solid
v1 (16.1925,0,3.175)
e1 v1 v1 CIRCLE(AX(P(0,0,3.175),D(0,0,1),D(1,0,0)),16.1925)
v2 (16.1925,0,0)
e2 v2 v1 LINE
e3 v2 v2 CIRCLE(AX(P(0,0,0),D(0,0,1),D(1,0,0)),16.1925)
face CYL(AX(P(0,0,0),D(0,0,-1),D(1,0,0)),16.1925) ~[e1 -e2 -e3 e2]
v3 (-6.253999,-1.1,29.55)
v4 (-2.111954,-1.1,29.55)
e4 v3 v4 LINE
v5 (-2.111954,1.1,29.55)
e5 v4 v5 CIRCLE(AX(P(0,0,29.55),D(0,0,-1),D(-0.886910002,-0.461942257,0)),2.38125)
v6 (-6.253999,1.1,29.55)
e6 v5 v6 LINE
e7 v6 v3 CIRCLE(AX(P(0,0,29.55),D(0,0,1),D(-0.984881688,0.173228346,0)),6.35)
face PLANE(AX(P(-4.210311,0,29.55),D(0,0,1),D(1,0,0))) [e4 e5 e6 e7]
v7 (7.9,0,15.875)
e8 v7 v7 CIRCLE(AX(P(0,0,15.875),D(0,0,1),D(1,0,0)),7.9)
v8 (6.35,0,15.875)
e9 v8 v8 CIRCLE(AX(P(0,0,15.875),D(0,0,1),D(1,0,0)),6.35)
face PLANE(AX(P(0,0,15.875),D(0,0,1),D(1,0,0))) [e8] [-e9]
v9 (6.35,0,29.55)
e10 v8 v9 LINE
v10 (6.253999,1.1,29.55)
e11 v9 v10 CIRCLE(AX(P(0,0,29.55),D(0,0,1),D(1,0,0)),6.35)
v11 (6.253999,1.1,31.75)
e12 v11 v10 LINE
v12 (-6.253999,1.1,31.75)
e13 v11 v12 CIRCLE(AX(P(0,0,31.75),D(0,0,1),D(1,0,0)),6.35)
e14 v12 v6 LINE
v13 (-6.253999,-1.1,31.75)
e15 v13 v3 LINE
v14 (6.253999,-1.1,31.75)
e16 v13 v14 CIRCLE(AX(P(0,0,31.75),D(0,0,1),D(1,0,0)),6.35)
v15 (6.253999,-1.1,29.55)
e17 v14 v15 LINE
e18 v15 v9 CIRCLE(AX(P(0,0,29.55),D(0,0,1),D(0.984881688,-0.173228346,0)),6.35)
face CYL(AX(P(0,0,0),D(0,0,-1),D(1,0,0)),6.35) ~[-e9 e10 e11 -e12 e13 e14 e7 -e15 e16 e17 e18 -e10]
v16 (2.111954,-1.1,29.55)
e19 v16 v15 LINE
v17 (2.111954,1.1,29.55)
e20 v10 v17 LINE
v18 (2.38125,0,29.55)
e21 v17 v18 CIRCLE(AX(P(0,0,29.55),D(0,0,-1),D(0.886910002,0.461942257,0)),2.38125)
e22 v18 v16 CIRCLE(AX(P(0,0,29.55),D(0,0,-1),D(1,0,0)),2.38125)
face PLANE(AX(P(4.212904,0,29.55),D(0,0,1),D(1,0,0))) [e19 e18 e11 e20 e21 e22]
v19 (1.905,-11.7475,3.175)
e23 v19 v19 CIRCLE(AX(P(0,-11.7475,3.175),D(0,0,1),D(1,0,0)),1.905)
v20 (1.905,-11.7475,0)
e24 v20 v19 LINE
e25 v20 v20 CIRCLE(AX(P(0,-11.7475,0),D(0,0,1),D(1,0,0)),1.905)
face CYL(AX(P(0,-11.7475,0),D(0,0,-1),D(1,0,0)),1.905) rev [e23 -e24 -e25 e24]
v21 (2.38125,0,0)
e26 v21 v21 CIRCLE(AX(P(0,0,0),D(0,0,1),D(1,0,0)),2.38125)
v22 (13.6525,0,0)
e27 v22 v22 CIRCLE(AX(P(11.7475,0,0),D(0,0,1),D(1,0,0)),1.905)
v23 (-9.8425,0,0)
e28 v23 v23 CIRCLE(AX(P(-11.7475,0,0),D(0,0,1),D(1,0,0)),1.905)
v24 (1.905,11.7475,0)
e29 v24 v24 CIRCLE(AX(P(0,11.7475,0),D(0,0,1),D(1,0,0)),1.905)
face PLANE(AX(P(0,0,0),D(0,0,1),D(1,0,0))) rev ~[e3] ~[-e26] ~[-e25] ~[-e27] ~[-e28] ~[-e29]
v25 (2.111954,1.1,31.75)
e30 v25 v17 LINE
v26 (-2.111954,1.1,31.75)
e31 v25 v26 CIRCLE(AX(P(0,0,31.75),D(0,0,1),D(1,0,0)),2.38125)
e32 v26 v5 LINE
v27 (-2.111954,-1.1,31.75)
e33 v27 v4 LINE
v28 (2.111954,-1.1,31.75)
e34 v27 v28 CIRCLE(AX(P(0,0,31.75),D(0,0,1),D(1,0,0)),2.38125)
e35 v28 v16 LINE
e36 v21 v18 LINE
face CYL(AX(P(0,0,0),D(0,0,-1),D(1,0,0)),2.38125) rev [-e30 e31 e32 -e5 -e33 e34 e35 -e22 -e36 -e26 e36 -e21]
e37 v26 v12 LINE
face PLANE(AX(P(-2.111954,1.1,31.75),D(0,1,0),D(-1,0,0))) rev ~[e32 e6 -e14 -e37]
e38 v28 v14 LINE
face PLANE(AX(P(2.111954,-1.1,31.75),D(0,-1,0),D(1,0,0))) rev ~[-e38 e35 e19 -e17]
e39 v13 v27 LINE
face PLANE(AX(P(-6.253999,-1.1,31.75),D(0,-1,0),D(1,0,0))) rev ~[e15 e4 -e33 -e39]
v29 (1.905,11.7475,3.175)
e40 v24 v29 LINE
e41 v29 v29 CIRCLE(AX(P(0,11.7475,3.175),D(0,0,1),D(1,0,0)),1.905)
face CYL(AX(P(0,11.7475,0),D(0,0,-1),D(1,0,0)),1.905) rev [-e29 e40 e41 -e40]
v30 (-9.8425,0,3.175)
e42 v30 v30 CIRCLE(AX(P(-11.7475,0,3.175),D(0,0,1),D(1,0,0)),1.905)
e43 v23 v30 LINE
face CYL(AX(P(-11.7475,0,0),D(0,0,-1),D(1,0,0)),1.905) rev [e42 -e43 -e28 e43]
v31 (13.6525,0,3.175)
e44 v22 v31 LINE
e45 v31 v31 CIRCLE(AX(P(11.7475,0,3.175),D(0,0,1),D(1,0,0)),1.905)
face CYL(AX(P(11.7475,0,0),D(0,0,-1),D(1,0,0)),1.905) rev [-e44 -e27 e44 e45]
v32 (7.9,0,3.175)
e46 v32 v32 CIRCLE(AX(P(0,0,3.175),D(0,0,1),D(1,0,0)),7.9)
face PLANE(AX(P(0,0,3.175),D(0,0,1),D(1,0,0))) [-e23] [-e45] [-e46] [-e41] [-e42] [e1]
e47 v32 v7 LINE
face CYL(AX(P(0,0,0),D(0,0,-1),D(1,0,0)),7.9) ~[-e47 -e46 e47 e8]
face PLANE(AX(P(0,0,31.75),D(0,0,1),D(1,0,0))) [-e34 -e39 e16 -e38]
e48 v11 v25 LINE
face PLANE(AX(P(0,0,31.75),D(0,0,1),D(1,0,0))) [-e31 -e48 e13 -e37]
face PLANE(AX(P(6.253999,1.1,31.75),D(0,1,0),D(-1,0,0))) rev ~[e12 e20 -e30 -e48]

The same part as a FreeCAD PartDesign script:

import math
import FreeCAD as App
import Part
import Sketcher

V = App.Vector
Q = App.Units.Quantity

doc = App.newDocument("Part")
body = doc.addObject("PartDesign::Body", "Body")

# Sketch on XY plane
sketch1 = doc.addObject("Sketcher::SketchObject", "Sketch")
body.addObject(sketch1)
sketch1.AttachmentSupport = (doc.XY_Plane, [""])
sketch1.MapMode = "FlatFace"
sketch1.addGeometry(Part.Circle(V(0, 0, 0), V(0, 0, 1), 8), False)
sketch1.addGeometry(Part.Circle(V(0, 0, 0), V(0, 0, 1), 6), False)
sketch1.addConstraint(Sketcher.Constraint("Coincident", 0, 3, -1, 1))
sketch1.addConstraint(Sketcher.Constraint("Coincident", 1, 3, -1, 1))
sketch1.addConstraint(Sketcher.Constraint("Diameter", 1, Q("0.5 in")))
sketch1.addConstraint(Sketcher.Constraint("Diameter", 0, 15.8))
pad1 = doc.addObject("PartDesign::Pad", "Pad")
body.addObject(pad1)
pad1.Profile = sketch1
pad1.Length = Q("0.625 in")

# Sketch on XY plane
sketch2 = doc.addObject("Sketcher::SketchObject", "Sketch001")
body.addObject(sketch2)
sketch2.AttachmentSupport = (doc.XY_Plane, [""])
sketch2.MapMode = "FlatFace"
sketch2.addGeometry(Part.Circle(V(0, 0, 0), V(0, 0, 1), 6.3), False)
sketch2.addGeometry(Part.Circle(V(0, 0, 0), V(0, 0, 1), 2.4), False)
sketch2.addConstraint(Sketcher.Constraint("Coincident", 0, 3, -1, 1))
sketch2.addConstraint(Sketcher.Constraint("Coincident", 1, 3, -1, 1))
sketch2.addConstraint(Sketcher.Constraint("Diameter", 0, Q("0.5 in")))
sketch2.addConstraint(Sketcher.Constraint("Diameter", 1, Q("0.1875 in")))
pad2 = doc.addObject("PartDesign::Pad", "Pad001")
body.addObject(pad2)
pad2.Profile = sketch2
pad2.Length = Q("1.25 in")

# Sketch on XY plane
sketch3 = doc.addObject("Sketcher::SketchObject", "Sketch002")
body.addObject(sketch3)
sketch3.AttachmentSupport = (doc.XY_Plane, [""])
sketch3.MapMode = "FlatFace"
sketch3.addGeometry(Part.Circle(V(0, 0, 0), V(0, 0, 1), 16.2), False)
sketch3.addGeometry(Part.Circle(V(0, -11.7, 0), V(0, 0, 1), 1.9), False)
sketch3.addGeometry(Part.Circle(V(-11.7, 0, 0), V(0, 0, 1), 1.9), False)
sketch3.addGeometry(Part.Circle(V(0, 0, 0), V(0, 0, 1), 7.9), False)
sketch3.addGeometry(Part.Circle(V(11.7, 0, 0), V(0, 0, 1), 1.9), False)
sketch3.addGeometry(Part.Circle(V(0, 11.7, 0), V(0, 0, 1), 1.9), False)
sketch3.addConstraint(Sketcher.Constraint("Coincident", 0, 3, -1, 1))
sketch3.addConstraint(Sketcher.Constraint("Coincident", 3, 3, -1, 1))
sketch3.addConstraint(Sketcher.Constraint("Equal", 1, 2))
sketch3.addConstraint(Sketcher.Constraint("Equal", 2, 4))
sketch3.addConstraint(Sketcher.Constraint("Equal", 4, 5))
sketch3.addConstraint(Sketcher.Constraint("Symmetric", 2, 3, 4, 3, -1, 1))
sketch3.addConstraint(Sketcher.Constraint("Symmetric", 1, 3, 5, 3, -1, 1))
sketch3.addConstraint(Sketcher.Constraint("PointOnObject", 1, 3, -2))
sketch3.addConstraint(Sketcher.Constraint("PointOnObject", 2, 3, -1))
sketch3.addConstraint(Sketcher.Constraint("Diameter", 1, Q("0.15 in")))
sketch3.addConstraint(Sketcher.Constraint("Diameter", 0, Q("1.275 in")))
sketch3.addConstraint(Sketcher.Constraint("Diameter", 3, 15.8))
sketch3.addConstraint(Sketcher.Constraint("DistanceX", 2, 3, 4, 3, Q("0.925 in")))
sketch3.addConstraint(Sketcher.Constraint("DistanceY", 1, 3, 5, 3, Q("0.925 in")))
pad3 = doc.addObject("PartDesign::Pad", "Pad002")
body.addObject(pad3)
pad3.Profile = sketch3
pad3.Length = Q("0.125 in")

# Sketch on XY plane
sketch4 = doc.addObject("Sketcher::SketchObject", "Sketch003")
body.addObject(sketch4)
sketch4.AttachmentSupport = (doc.XY_Plane, [""])
sketch4.MapMode = "FlatFace"
sketch4.AttachmentOffset = App.Placement(V(0, 0, 1.25 * 25.4), App.Rotation())
sketch4.addGeometry(Part.ArcOfCircle(Part.Circle(V(0, 0, 0), V(0, 0, 1), 6.4), math.radians(0), math.radians(9.98)), False)
sketch4.addGeometry(Part.LineSegment(V(6.3, 1.1, 0), V(2.1, 1.1, 0)), False)
sketch4.addGeometry(Part.ArcOfCircle(Part.Circle(V(0, 0, 0), V(0, 0, 1), 2.4), math.radians(0), math.radians(28)), False)
sketch4.addGeometry(Part.ArcOfCircle(Part.Circle(V(0, 0, 0), V(0, 0, 1), 2.4), math.radians(-28), math.radians(0)), False)
sketch4.addGeometry(Part.LineSegment(V(2.1, -1.1, 0), V(6.3, -1.1, 0)), False)
sketch4.addGeometry(Part.ArcOfCircle(Part.Circle(V(0, 0, 0), V(0, 0, 1), 6.4), math.radians(-9.98), math.radians(0)), False)
sketch4.addGeometry(Part.LineSegment(V(-2.1, 1.1, 0), V(-6.3, 1.1, 0)), False)
sketch4.addGeometry(Part.ArcOfCircle(Part.Circle(V(0, 0, 0), V(0, 0, 1), 6.3), math.radians(170.02), math.radians(189.98)), False)
sketch4.addGeometry(Part.LineSegment(V(-6.3, -1.1, 0), V(-2.1, -1.1, 0)), False)
sketch4.addGeometry(Part.ArcOfCircle(Part.Circle(V(0, 0, 0), V(0, 0, 1), 2.4), math.radians(152), math.radians(208)), False)
sketch4.addConstraint(Sketcher.Constraint("Coincident", 0, 2, 1, 1))
sketch4.addConstraint(Sketcher.Constraint("Coincident", 1, 2, 2, 2))
sketch4.addConstraint(Sketcher.Constraint("Tangent", 2, 1, 3, 2))
sketch4.addConstraint(Sketcher.Constraint("Coincident", 3, 1, 4, 1))
sketch4.addConstraint(Sketcher.Constraint("Coincident", 4, 2, 5, 1))
sketch4.addConstraint(Sketcher.Constraint("Tangent", 5, 2, 0, 1))
sketch4.addConstraint(Sketcher.Constraint("Coincident", 6, 2, 7, 1))
sketch4.addConstraint(Sketcher.Constraint("Coincident", 7, 2, 8, 1))
sketch4.addConstraint(Sketcher.Constraint("Coincident", 8, 2, 9, 2))
sketch4.addConstraint(Sketcher.Constraint("Coincident", 9, 1, 6, 1))
sketch4.addConstraint(Sketcher.Constraint("Horizontal", 1))
sketch4.addConstraint(Sketcher.Constraint("Horizontal", 4))
sketch4.addConstraint(Sketcher.Constraint("Horizontal", 6))
sketch4.addConstraint(Sketcher.Constraint("Horizontal", 8))
sketch4.addConstraint(Sketcher.Constraint("Coincident", 0, 3, -1, 1))
sketch4.addConstraint(Sketcher.Constraint("Coincident", 2, 3, -1, 1))
sketch4.addConstraint(Sketcher.Constraint("Coincident", 7, 3, -1, 1))
sketch4.addConstraint(Sketcher.Constraint("Coincident", 9, 3, -1, 1))
sketch4.addConstraint(Sketcher.Constraint("Equal", 2, 3))
sketch4.addConstraint(Sketcher.Constraint("Equal", 0, 5))
sketch4.addConstraint(Sketcher.Constraint("Equal", 5, 7))
sketch4.addConstraint(Sketcher.Constraint("Equal", 3, 9))
sketch4.addConstraint(Sketcher.Constraint("PointOnObject", 2, 1, -1))
sketch4.addConstraint(Sketcher.Constraint("PointOnObject", 5, 2, -1))
sketch4.addConstraint(Sketcher.Constraint("Horizontal", 1, 2, 6, 2))
sketch4.addConstraint(Sketcher.Constraint("Horizontal", 4, 2, 7, 2))
sketch4.addConstraint(Sketcher.Constraint("Vertical", 1, 2, 3, 1))
sketch4.addConstraint(Sketcher.Constraint("Radius", 0, Q("0.25 in")))
sketch4.addConstraint(Sketcher.Constraint("Radius", 2, Q("0.09375 in")))
sketch4.addConstraint(Sketcher.Constraint("DistanceX", -1, 1, 0, 2, 6.253999))
pocket1 = doc.addObject("PartDesign::Pocket", "Pocket")
body.addObject(pocket1)
pocket1.Profile = sketch4
pocket1.Length = 2.2

doc.recompute()
